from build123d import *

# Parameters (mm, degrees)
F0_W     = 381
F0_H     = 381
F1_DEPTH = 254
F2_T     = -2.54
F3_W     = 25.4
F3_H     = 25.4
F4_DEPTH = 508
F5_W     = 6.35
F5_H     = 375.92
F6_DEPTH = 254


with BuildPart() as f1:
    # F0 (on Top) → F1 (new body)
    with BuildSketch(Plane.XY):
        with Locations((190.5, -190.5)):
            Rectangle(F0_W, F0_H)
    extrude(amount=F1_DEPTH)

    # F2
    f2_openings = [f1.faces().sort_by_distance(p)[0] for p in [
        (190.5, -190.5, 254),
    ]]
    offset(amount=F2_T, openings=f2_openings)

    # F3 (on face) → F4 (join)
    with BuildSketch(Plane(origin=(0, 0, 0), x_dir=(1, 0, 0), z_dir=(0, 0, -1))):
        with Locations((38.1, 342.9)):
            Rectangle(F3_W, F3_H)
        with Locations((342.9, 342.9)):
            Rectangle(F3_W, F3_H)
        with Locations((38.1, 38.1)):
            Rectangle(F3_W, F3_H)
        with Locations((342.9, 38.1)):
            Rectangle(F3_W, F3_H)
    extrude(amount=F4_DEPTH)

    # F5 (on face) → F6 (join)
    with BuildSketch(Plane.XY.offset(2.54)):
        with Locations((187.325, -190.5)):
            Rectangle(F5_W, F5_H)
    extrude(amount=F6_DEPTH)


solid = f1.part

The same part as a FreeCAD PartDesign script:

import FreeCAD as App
import Part
import Sketcher
from FreeCAD import Vector
Q = App.Units.Quantity


def faces_at(feature, points):
    """Names of the faces that lie closest to the given points."""
    faces = feature.Shape.Faces
    near = lambda p: min(range(len(faces)), key=lambda i: faces[i].distToShape(Part.Vertex(*p))[0])
    return sorted({f"Face{near(p) + 1}" for p in points})

doc = App.newDocument("Part")
params = doc.addObject("Spreadsheet::Sheet", "Params")
for row, (alias, value) in enumerate([
    ("sketch1_width", "15 in"),
    ("pad1_length", "10 in"),
    ("thickness_wall", "0.1 in"),
    ("sketch2_width", "1 in"),
    ("pad2_length", "20 in"),
    ("sketch3_height", "14.8 in"),
    ("sketch3_width", "0.25 in"),
    ("pad3_length", "10 in"),
], start=1):
    params.set(f"A{row}", alias)
    params.set(f"B{row}", "=" + value)
    params.setAlias(f"B{row}", alias)

body = doc.addObject("PartDesign::Body", "Body")

sketch1 = body.newObject("Sketcher::SketchObject", "Sketch")
sketch1.AttachmentSupport = (doc.getObject("XY_Plane"), [""])
sketch1.MapMode = "FlatFace"
sketch1.addGeometry(Part.LineSegment(Vector(0, 0, 0), Vector(0, -381, 0)), False)
sketch1.addGeometry(Part.LineSegment(Vector(0, -381, 0), Vector(381, -381, 0)), False)
sketch1.addGeometry(Part.LineSegment(Vector(381, -381, 0), Vector(381, 0, 0)), False)
sketch1.addGeometry(Part.LineSegment(Vector(381, 0, 0), Vector(0, 0, 0)), False)
sketch1.addConstraint(Sketcher.Constraint("Coincident", 0, 2, 1, 1))
sketch1.addConstraint(Sketcher.Constraint("Coincident", 1, 2, 2, 1))
sketch1.addConstraint(Sketcher.Constraint("Coincident", 2, 2, 3, 1))
sketch1.addConstraint(Sketcher.Constraint("Coincident", 3, 2, 0, 1))
sketch1.addConstraint(Sketcher.Constraint("Vertical", 0))
sketch1.addConstraint(Sketcher.Constraint("Horizontal", 1))
sketch1.addConstraint(Sketcher.Constraint("Vertical", 2))
sketch1.addConstraint(Sketcher.Constraint("Horizontal", 3))
sketch1.addConstraint(Sketcher.Constraint("Coincident", 3, 2, -1, 1))
sketch1.addConstraint(Sketcher.Constraint("Equal", 3, 0))
sketch1.addConstraint(Sketcher.Constraint("DistanceX", 1, 1, 1, 2, Q("15 in")))
sketch1.setExpression("Constraints[10]", "Params.sketch1_width")
pad1 = body.newObject("PartDesign::Pad", "Pad")
pad1.Profile = sketch1
pad1.setExpression("Length", "Params.pad1_length")
doc.recompute()

thickness = body.newObject("PartDesign::Thickness", "Thickness")
thickness.Base = (pad1, faces_at(pad1, [(190.5, -190.5, 254)]))
thickness.setExpression("Value", "Params.thickness_wall")
thickness.Reversed = True
thickness.Join = "Arc"

sketch2 = body.newObject("Sketcher::SketchObject", "Sketch001")
sketch2.AttachmentSupport = (doc.getObject("XY_Plane"), [""])
sketch2.MapMode = "FlatFace"
sketch2.addGeometry(Part.LineSegment(Vector(25, -356, 0), Vector(25, -330, 0)), False)
sketch2.addGeometry(Part.LineSegment(Vector(25, -330, 0), Vector(51, -330, 0)), False)
sketch2.addGeometry(Part.LineSegment(Vector(51, -330, 0), Vector(51, -356, 0)), False)
sketch2.addGeometry(Part.LineSegment(Vector(51, -356, 0), Vector(25, -356, 0)), False)
sketch2.addGeometry(Part.LineSegment(Vector(330, -356, 0), Vector(330, -330, 0)), False)
sketch2.addGeometry(Part.LineSegment(Vector(330, -330, 0), Vector(356, -330, 0)), False)
sketch2.addGeometry(Part.LineSegment(Vector(356, -330, 0), Vector(356, -356, 0)), False)
sketch2.addGeometry(Part.LineSegment(Vector(356, -356, 0), Vector(330, -356, 0)), False)
sketch2.addGeometry(Part.LineSegment(Vector(25, -51, 0), Vector(25, -25, 0)), False)
sketch2.addGeometry(Part.LineSegment(Vector(25, -25, 0), Vector(51, -25, 0)), False)
sketch2.addGeometry(Part.LineSegment(Vector(51, -25, 0), Vector(51, -51, 0)), False)
sketch2.addGeometry(Part.LineSegment(Vector(51, -51, 0), Vector(25, -51, 0)), False)
sketch2.addGeometry(Part.LineSegment(Vector(330, -51, 0), Vector(330, -25, 0)), False)
sketch2.addGeometry(Part.LineSegment(Vector(330, -25, 0), Vector(356, -25, 0)), False)
sketch2.addGeometry(Part.LineSegment(Vector(356, -25, 0), Vector(356, -51, 0)), False)
sketch2.addGeometry(Part.LineSegment(Vector(356, -51, 0), Vector(330, -51, 0)), False)
sketch2.addConstraint(Sketcher.Constraint("Coincident", 0, 2, 1, 1))
sketch2.addConstraint(Sketcher.Constraint("Coincident", 1, 2, 2, 1))
sketch2.addConstraint(Sketcher.Constraint("Coincident", 2, 2, 3, 1))
sketch2.addConstraint(Sketcher.Constraint("Coincident", 3, 2, 0, 1))
sketch2.addConstraint(Sketcher.Constraint("Coincident", 4, 2, 5, 1))
sketch2.addConstraint(Sketcher.Constraint("Coincident", 5, 2, 6, 1))
sketch2.addConstraint(Sketcher.Constraint("Coincident", 6, 2, 7, 1))
sketch2.addConstraint(Sketcher.Constraint("Coincident", 7, 2, 4, 1))
sketch2.addConstraint(Sketcher.Constraint("Coincident", 8, 2, 9, 1))
sketch2.addConstraint(Sketcher.Constraint("Coincident", 9, 2, 10, 1))
sketch2.addConstraint(Sketcher.Constraint("Coincident", 10, 2, 11, 1))
sketch2.addConstraint(Sketcher.Constraint("Coincident", 11, 2, 8, 1))
sketch2.addConstraint(Sketcher.Constraint("Coincident", 12, 2, 13, 1))
sketch2.addConstraint(Sketcher.Constraint("Coincident", 13, 2, 14, 1))
sketch2.addConstraint(Sketcher.Constraint("Coincident", 14, 2, 15, 1))
sketch2.addConstraint(Sketcher.Constraint("Coincident", 15, 2, 12, 1))
sketch2.addConstraint(Sketcher.Constraint("Vertical", 0))
sketch2.addConstraint(Sketcher.Constraint("Horizontal", 1))
sketch2.addConstraint(Sketcher.Constraint("Vertical", 2))
sketch2.addConstraint(Sketcher.Constraint("Horizontal", 3))
sketch2.addConstraint(Sketcher.Constraint("Vertical", 4))
sketch2.addConstraint(Sketcher.Constraint("Horizontal", 5))
sketch2.addConstraint(Sketcher.Constraint("Vertical", 6))
sketch2.addConstraint(Sketcher.Constraint("Horizontal", 7))
sketch2.addConstraint(Sketcher.Constraint("Vertical", 8))
sketch2.addConstraint(Sketcher.Constraint("Horizontal", 9))
sketch2.addConstraint(Sketcher.Constraint("Vertical", 10))
sketch2.addConstraint(Sketcher.Constraint("Horizontal", 11))
sketch2.addConstraint(Sketcher.Constraint("Vertical", 12))
sketch2.addConstraint(Sketcher.Constraint("Horizontal", 13))
sketch2.addConstraint(Sketcher.Constraint("Vertical", 14))
sketch2.addConstraint(Sketcher.Constraint("Horizontal", 15))
sketch2.addConstraint(Sketcher.Constraint("Horizontal", 1, 2, 4, 2))
sketch2.addConstraint(Sketcher.Constraint("Horizontal", 3, 2, 6, 2))
sketch2.addConstraint(Sketcher.Constraint("Horizontal", 9, 2, 12, 2))
sketch2.addConstraint(Sketcher.Constraint("Horizontal", 11, 2, 14, 2))
sketch2.addConstraint(Sketcher.Constraint("Vertical", 3, 2, 8, 2))
sketch2.addConstraint(Sketcher.Constraint("Vertical", 2, 2, 9, 2))
sketch2.addConstraint(Sketcher.Constraint("Vertical", 7, 2, 12, 2))
sketch2.addConstraint(Sketcher.Constraint("Vertical", 6, 2, 13, 2))
sketch2.addConstraint(Sketcher.Constraint("Equal", 3, 5))
sketch2.addConstraint(Sketcher.Constraint("Equal", 15, 0))
sketch2.addConstraint(Sketcher.Constraint("Equal", 6, 8))
sketch2.addConstraint(Sketcher.Constraint("DistanceX", 1, 1, 1, 2, Q("1 in")))
sketch2.addConstraint(Sketcher.Constraint("DistanceX", -1, 1, 0, 2, Q("1 in")))
sketch2.addConstraint(Sketcher.Constraint("DistanceY", 0, 2, -1, 1, Q("13 in")))
sketch2.addConstraint(Sketcher.Constraint("DistanceX", -1, 1, 4, 2, Q("13 in")))
sketch2.addConstraint(Sketcher.Constraint("DistanceY", 8, 2, -1, 1, Q("1 in")))
sketch2.setExpression("Constraints[43]", "Params.sketch2_width")
pad2 = body.newObject("PartDesign::Pad", "Pad001")
pad2.Profile = sketch2
pad2.setExpression("Length", "Params.pad2_length")
pad2.Reversed = True

sketch3 = body.newObject("Sketcher::SketchObject", "Sketch002")
sketch3.AttachmentSupport = (doc.getObject("XY_Plane"), [""])
sketch3.MapMode = "FlatFace"
sketch3.AttachmentOffset = App.Placement(Vector(0, 0, 0.1 * 25.4), App.Rotation())
sketch3.addGeometry(Part.LineSegment(Vector(184, -3, 0), Vector(184, -378, 0)), False)
sketch3.addGeometry(Part.LineSegment(Vector(184, -378, 0), Vector(190, -378, 0)), False)
sketch3.addGeometry(Part.LineSegment(Vector(190, -378, 0), Vector(190, -3, 0)), False)
sketch3.addGeometry(Part.LineSegment(Vector(190, -3, 0), Vector(184, -3, 0)), False)
sketch3.addConstraint(Sketcher.Constraint("Coincident", 0, 2, 1, 1))
sketch3.addConstraint(Sketcher.Constraint("Coincident", 1, 2, 2, 1))
sketch3.addConstraint(Sketcher.Constraint("Coincident", 2, 2, 3, 1))
sketch3.addConstraint(Sketcher.Constraint("Coincident", 3, 2, 0, 1))
sketch3.addConstraint(Sketcher.Constraint("Vertical", 0))
sketch3.addConstraint(Sketcher.Constraint("Horizontal", 1))
sketch3.addConstraint(Sketcher.Constraint("Vertical", 2))
sketch3.addConstraint(Sketcher.Constraint("Horizontal", 3))
sketch3.addConstraint(Sketcher.Constraint("DistanceY", 0, 2, 0, 1, Q("14.8 in")))
sketch3.addConstraint(Sketcher.Constraint("DistanceX", 1, 1, 1, 2, Q("0.25 in")))
sketch3.addConstraint(Sketcher.Constraint("DistanceY", 0, 2, -1, 1, Q("14.9 in")))
sketch3.addConstraint(Sketcher.Constraint("DistanceX", -1, 1, 1, 2, Q("7.5 in")))
sketch3.setExpression("Constraints[8]", "Params.sketch3_height")
sketch3.setExpression("Constraints[9]", "Params.sketch3_width")
pad3 = body.newObject("PartDesign::Pad", "Pad002")
pad3.Profile = sketch3
pad3.setExpression("Length", "Params.pad3_length")

doc.recompute()
